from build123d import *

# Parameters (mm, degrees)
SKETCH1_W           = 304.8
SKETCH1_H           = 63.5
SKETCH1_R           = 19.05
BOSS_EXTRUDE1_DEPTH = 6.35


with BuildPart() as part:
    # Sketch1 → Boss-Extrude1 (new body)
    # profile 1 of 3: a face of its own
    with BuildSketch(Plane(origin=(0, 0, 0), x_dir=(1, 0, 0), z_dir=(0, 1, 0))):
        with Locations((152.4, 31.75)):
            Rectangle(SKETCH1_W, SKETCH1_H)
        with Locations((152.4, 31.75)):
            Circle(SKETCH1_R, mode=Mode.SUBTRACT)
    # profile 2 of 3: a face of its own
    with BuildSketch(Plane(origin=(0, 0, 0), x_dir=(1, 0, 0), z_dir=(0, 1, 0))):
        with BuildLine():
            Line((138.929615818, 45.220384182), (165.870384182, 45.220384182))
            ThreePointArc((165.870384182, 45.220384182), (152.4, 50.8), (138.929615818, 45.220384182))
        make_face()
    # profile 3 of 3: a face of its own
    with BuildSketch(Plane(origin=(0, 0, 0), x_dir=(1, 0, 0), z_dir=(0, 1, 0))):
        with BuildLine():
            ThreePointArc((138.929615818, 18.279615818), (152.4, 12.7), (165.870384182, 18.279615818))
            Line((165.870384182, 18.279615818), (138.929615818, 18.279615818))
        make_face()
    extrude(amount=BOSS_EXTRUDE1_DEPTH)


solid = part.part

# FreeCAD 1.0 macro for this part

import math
import FreeCAD as App
import Part
import Sketcher
Q = App.Units.Quantity


def add_polygon(sketch, points):
    """Adds a closed chain of lines whose ends are joined by coincident constraints."""
    first, n = sketch.GeometryCount, len(points)
    for a, b in zip(points, points[1:] + points[:1]):
        sketch.addGeometry(Part.LineSegment(App.Vector(*a, 0), App.Vector(*b, 0)), False)
    for i in range(n):
        sketch.addConstraint(Sketcher.Constraint("Coincident", first + i, 2, first + (i + 1) % n, 1))

doc = App.newDocument("Part")
params = doc.addObject("Spreadsheet::Sheet", "Params")
for row, (alias, value) in enumerate([
    ("sketch1_width", "12 in"),
    ("sketch1_radius", "0.75 in"),
    ("sketch1_height", "2.5 in"),
    ("pad1_length", "0.25 in"),
], start=1):
    params.set(f"A{row}", alias)
    params.set(f"B{row}", "=" + value)
    params.setAlias(f"B{row}", alias)

body = doc.addObject("PartDesign::Body", "Body")

# Sketch on XZ plane
sketch1 = body.newObject("Sketcher::SketchObject", "Sketch")
sketch1.AttachmentSupport = (doc.getObject("XZ_Plane"), [""])
sketch1.MapMode = "FlatFace"
add_polygon(sketch1, [(0, -63.5), (0, 0), (304.8, 0), (304.8, -63.5)])  # lines 0-3
sketch1.addGeometry(Part.ArcOfCircle(Part.Circle(App.Vector(152.4, -31.75, 0), App.Vector(0, 0, 1), 19.05), math.radians(-45), math.radians(45)), False)  # 4
sketch1.addGeometry(Part.LineSegment(App.Vector(165.870384, -18.279616, 0), App.Vector(138.929616, -18.279616, 0)), False)  # 5
sketch1.addGeometry(Part.ArcOfCircle(Part.Circle(App.Vector(152.4, -31.75, 0), App.Vector(0, 0, 1), 19.05), math.radians(135), math.radians(225)), False)  # 6
sketch1.addGeometry(Part.LineSegment(App.Vector(138.929616, -45.220384, 0), App.Vector(165.870384, -45.220384, 0)), False)  # 7
sketch1.addConstraint([
    Sketcher.Constraint("Coincident", 4, 2, 5, 1),
    Sketcher.Constraint("Coincident", 5, 2, 6, 1),
    Sketcher.Constraint("Coincident", 6, 2, 7, 1),
    Sketcher.Constraint("Coincident", 7, 2, 4, 1),
    Sketcher.Constraint("Vertical", 0),
    Sketcher.Constraint("Horizontal", 1),
    Sketcher.Constraint("Vertical", 2),
    Sketcher.Constraint("Horizontal", 3),
    Sketcher.Constraint("Horizontal", 5),
    Sketcher.Constraint("Horizontal", 7),
    Sketcher.Constraint("Coincident", 0, 2, -1, 1),
    Sketcher.Constraint("Coincident", 6, 3, 4, 3),
    Sketcher.Constraint("Equal", 4, 6),
    Sketcher.Constraint("Vertical", 5, 2, 6, 2),
    Sketcher.Constraint("DistanceX", 1, 1, 1, 2, Q("12 in")),
    Sketcher.Constraint("Radius", 4, Q("0.75 in")),
    Sketcher.Constraint("DistanceY", 0, 1, 0, 2, Q("2.5 in")),
    Sketcher.Constraint("DistanceX", -1, 1, 4, 3, Q("6 in")),
    Sketcher.Constraint("DistanceY", 4, 3, -1, 1, Q("1.25 in")),
    Sketcher.Constraint("DistanceX", 5, 2, 5, 1, 26.940768),
])
sketch1.setExpression("Constraints[18]", "Params.sketch1_width")
sketch1.setExpression("Constraints[19]", "Params.sketch1_radius")
sketch1.setExpression("Constraints[20]", "Params.sketch1_height")
pad1 = body.newObject("PartDesign::Pad", "Pad")
pad1.Profile = sketch1
pad1.setExpression("Length", "Params.pad1_length")
pad1.Reversed = True

doc.recompute()
